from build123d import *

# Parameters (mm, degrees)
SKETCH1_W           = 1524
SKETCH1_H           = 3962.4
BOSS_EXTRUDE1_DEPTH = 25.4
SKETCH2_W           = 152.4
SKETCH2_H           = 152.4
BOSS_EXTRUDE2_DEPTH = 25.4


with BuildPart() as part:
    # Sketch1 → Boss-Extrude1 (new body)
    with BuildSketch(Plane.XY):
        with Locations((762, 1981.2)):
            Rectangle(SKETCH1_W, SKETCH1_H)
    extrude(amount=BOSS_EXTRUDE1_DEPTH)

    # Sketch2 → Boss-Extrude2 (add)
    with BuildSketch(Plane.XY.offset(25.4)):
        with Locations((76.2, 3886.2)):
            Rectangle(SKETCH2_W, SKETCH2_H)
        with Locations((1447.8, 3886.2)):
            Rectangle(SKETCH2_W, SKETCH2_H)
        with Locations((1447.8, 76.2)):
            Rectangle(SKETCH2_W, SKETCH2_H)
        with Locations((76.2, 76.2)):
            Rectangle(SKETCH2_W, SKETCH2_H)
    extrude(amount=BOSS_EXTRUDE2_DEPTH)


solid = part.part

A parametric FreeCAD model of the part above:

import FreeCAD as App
import Part
import Sketcher
from FreeCAD import Vector
Q = App.Units.Quantity


def add_polygon(sketch, points):
    """Adds a closed chain of lines whose ends are joined by coincident constraints."""
    first, n = sketch.GeometryCount, len(points)
    for a, b in zip(points, points[1:] + points[:1]):
        sketch.addGeometry(Part.LineSegment(App.Vector(*a, 0), App.Vector(*b, 0)), False)
    for i in range(n):
        sketch.addConstraint(Sketcher.Constraint("Coincident", first + i, 2, first + (i + 1) % n, 1))

doc = App.newDocument("Part")
body = doc.addObject("PartDesign::Body", "Body")

sketch1 = body.newObject("Sketcher::SketchObject", "Sketch")
sketch1.AttachmentSupport = (doc.getObject("XY_Plane"), [""])
sketch1.MapMode = "FlatFace"
add_polygon(sketch1, [(0, 3962), (0, 0), (1524, 0), (1524, 3962)])
sketch1.addConstraint(Sketcher.Constraint("Vertical", 0))
sketch1.addConstraint(Sketcher.Constraint("Horizontal", 1))
sketch1.addConstraint(Sketcher.Constraint("Vertical", 2))
sketch1.addConstraint(Sketcher.Constraint("Horizontal", 3))
sketch1.addConstraint(Sketcher.Constraint("Coincident", 0, 2, -1, 1))
sketch1.addConstraint(Sketcher.Constraint("DistanceX", 1, 1, 1, 2, Q("60 in")))
sketch1.addConstraint(Sketcher.Constraint("DistanceY", 0, 2, 0, 1, Q("156 in")))
pad1 = body.newObject("PartDesign::Pad", "Pad")
pad1.Profile = sketch1
pad1.Length = Q("1 in")

sketch2 = body.newObject("Sketcher::SketchObject", "Sketch001")
sketch2.AttachmentSupport = (doc.getObject("XY_Plane"), [""])
sketch2.MapMode = "FlatFace"
sketch2.AttachmentOffset = App.Placement(Vector(0, 0, 1 * 25.4), App.Rotation())
add_polygon(sketch2, [(0, 3962), (0, 3810), (152, 3810), (152, 3962)])
add_polygon(sketch2, [(1372, 3962), (1372, 3810), (1524, 3810), (1524, 3962)])
add_polygon(sketch2, [(1372, 152), (1372, 0), (1524, 0), (1524, 152)])
add_polygon(sketch2, [(0, 152), (0, 0), (152, 0), (152, 152)])
sketch2.addConstraint(Sketcher.Constraint("Vertical", 0))
sketch2.addConstraint(Sketcher.Constraint("Horizontal", 1))
sketch2.addConstraint(Sketcher.Constraint("Vertical", 2))
sketch2.addConstraint(Sketcher.Constraint("Horizontal", 3))
sketch2.addConstraint(Sketcher.Constraint("Vertical", 4))
sketch2.addConstraint(Sketcher.Constraint("Horizontal", 5))
sketch2.addConstraint(Sketcher.Constraint("Vertical", 6))
sketch2.addConstraint(Sketcher.Constraint("Horizontal", 7))
sketch2.addConstraint(Sketcher.Constraint("Vertical", 8))
sketch2.addConstraint(Sketcher.Constraint("Horizontal", 9))
sketch2.addConstraint(Sketcher.Constraint("Vertical", 10))
sketch2.addConstraint(Sketcher.Constraint("Horizontal", 11))
sketch2.addConstraint(Sketcher.Constraint("Vertical", 12))
sketch2.addConstraint(Sketcher.Constraint("Horizontal", 13))
sketch2.addConstraint(Sketcher.Constraint("Vertical", 14))
sketch2.addConstraint(Sketcher.Constraint("Horizontal", 15))
sketch2.addConstraint(Sketcher.Constraint("Coincident", 12, 2, -1, 1))
sketch2.addConstraint(Sketcher.Constraint("PointOnObject", 0, 2, -2))
sketch2.addConstraint(Sketcher.Constraint("PointOnObject", 8, 2, -1))
sketch2.addConstraint(Sketcher.Constraint("Horizontal", 1, 2, 4, 2))
sketch2.addConstraint(Sketcher.Constraint("Horizontal", 3, 2, 6, 2))
sketch2.addConstraint(Sketcher.Constraint("Horizontal", 11, 2, 14, 2))
sketch2.addConstraint(Sketcher.Constraint("Vertical", 7, 2, 8, 2))
sketch2.addConstraint(Sketcher.Constraint("Vertical", 6, 2, 9, 2))
sketch2.addConstraint(Sketcher.Constraint("Vertical", 2, 2, 13, 2))
sketch2.addConstraint(Sketcher.Constraint("Equal", 3, 5))
sketch2.addConstraint(Sketcher.Constraint("Equal", 15, 0))
sketch2.addConstraint(Sketcher.Constraint("Equal", 6, 8))
sketch2.addConstraint(Sketcher.Constraint("DistanceX", 1, 1, 1, 2, Q("6 in")))
sketch2.addConstraint(Sketcher.Constraint("DistanceY", -1, 1, 0, 2, Q("150 in")))
sketch2.addConstraint(Sketcher.Constraint("DistanceX", -1, 1, 4, 2, Q("54 in")))
pad2 = body.newObject("PartDesign::Pad", "Pad001")
pad2.Profile = sketch2
pad2.Length = Q("1 in")

doc.recompute()
